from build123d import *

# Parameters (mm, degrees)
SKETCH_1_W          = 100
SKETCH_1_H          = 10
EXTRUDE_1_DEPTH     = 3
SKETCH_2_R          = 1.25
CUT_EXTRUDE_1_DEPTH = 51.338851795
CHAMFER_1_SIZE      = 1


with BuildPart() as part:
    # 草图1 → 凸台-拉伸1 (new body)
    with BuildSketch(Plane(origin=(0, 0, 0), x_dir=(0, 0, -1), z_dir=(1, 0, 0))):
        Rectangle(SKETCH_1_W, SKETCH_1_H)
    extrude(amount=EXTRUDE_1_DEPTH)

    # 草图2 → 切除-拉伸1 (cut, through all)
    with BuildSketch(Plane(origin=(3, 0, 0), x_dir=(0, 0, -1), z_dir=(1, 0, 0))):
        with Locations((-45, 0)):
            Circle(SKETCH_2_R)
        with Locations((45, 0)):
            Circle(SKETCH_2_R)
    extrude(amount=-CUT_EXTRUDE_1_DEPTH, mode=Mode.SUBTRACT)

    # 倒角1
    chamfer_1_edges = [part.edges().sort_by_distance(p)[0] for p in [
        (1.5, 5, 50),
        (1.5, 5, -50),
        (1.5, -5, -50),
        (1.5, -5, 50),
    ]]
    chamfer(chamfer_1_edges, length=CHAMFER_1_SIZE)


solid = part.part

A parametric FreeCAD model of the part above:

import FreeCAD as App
import Part
import Sketcher
Q = App.Units.Quantity


def edges_at(feature, points):
    """Names of the edges that pass closest to the given points."""
    edges = feature.Shape.Edges
    near = lambda p: min(range(len(edges)), key=lambda i: edges[i].distToShape(Part.Vertex(*p))[0])
    return sorted({f"Edge{near(p) + 1}" for p in points})

doc = App.newDocument("Part")
body = doc.addObject("PartDesign::Body", "Body")

sketch1 = body.newObject("Sketcher::SketchObject", "Sketch")
sketch1.AttachmentSupport = (doc.getObject("YZ_Plane"), [""])
sketch1.MapMode = "FlatFace"
sketch1.addGeometry([
    Part.LineSegment(App.Vector(5, 50, 0), App.Vector(-5, 50, 0)),
    Part.LineSegment(App.Vector(-5, 50, 0), App.Vector(-5, -50, 0)),
    Part.LineSegment(App.Vector(-5, -50, 0), App.Vector(5, -50, 0)),
    Part.LineSegment(App.Vector(5, -50, 0), App.Vector(5, 50, 0)),
], False)
sketch1.addConstraint([
    Sketcher.Constraint("Coincident", 0, 2, 1, 1),
    Sketcher.Constraint("Coincident", 1, 2, 2, 1),
    Sketcher.Constraint("Coincident", 2, 2, 3, 1),
    Sketcher.Constraint("Coincident", 3, 2, 0, 1),
    Sketcher.Constraint("Horizontal", 0),
    Sketcher.Constraint("Vertical", 1),
    Sketcher.Constraint("Horizontal", 2),
    Sketcher.Constraint("Vertical", 3),
    Sketcher.Constraint("Symmetric", 0, 2, 2, 2, -1, 1),
    Sketcher.Constraint("DistanceX", 0, 2, 0, 1, Q("10 mm")),
    Sketcher.Constraint("DistanceY", 1, 2, 1, 1, Q("100 mm")),
])
pad1 = body.newObject("PartDesign::Pad", "Pad")
pad1.Profile = sketch1
pad1.Length = 3

sketch2 = body.newObject("Sketcher::SketchObject", "Sketch001")
sketch2.AttachmentSupport = (doc.getObject("YZ_Plane"), [""])
sketch2.MapMode = "FlatFace"
sketch2.AttachmentOffset = App.Placement(App.Vector(0, 0, 3), App.Rotation())
sketch2.addGeometry([
    Part.Circle(App.Vector(0, 45, 0), App.Vector(0, 0, 1), 1.2),
    Part.Circle(App.Vector(0, -45, 0), App.Vector(0, 0, 1), 1.2),
], False)
sketch2.addConstraint([
    Sketcher.Constraint("Equal", 0, 1),
    Sketcher.Constraint("Symmetric", 0, 3, 1, 3, -1, 1),
    Sketcher.Constraint("PointOnObject", 0, 3, -2),
    Sketcher.Constraint("Diameter", 0, Q("2.5 mm")),
    Sketcher.Constraint("DistanceY", -1, 1, 0, 3, Q("45 mm")),
])
pocket1 = body.newObject("PartDesign::Pocket", "Pocket")
pocket1.Profile = sketch2
pocket1.Type = "ThroughAll"
doc.recompute()

chamfer = body.newObject("PartDesign::Chamfer", "Chamfer")
chamfer.Base = (pocket1, edges_at(pocket1, [
    (1.5, 5, 50),
    (1.5, 5, -50),
    (1.5, -5, -50),
    (1.5, -5, 50),
]))
chamfer.Size = 1

doc.recompute()
